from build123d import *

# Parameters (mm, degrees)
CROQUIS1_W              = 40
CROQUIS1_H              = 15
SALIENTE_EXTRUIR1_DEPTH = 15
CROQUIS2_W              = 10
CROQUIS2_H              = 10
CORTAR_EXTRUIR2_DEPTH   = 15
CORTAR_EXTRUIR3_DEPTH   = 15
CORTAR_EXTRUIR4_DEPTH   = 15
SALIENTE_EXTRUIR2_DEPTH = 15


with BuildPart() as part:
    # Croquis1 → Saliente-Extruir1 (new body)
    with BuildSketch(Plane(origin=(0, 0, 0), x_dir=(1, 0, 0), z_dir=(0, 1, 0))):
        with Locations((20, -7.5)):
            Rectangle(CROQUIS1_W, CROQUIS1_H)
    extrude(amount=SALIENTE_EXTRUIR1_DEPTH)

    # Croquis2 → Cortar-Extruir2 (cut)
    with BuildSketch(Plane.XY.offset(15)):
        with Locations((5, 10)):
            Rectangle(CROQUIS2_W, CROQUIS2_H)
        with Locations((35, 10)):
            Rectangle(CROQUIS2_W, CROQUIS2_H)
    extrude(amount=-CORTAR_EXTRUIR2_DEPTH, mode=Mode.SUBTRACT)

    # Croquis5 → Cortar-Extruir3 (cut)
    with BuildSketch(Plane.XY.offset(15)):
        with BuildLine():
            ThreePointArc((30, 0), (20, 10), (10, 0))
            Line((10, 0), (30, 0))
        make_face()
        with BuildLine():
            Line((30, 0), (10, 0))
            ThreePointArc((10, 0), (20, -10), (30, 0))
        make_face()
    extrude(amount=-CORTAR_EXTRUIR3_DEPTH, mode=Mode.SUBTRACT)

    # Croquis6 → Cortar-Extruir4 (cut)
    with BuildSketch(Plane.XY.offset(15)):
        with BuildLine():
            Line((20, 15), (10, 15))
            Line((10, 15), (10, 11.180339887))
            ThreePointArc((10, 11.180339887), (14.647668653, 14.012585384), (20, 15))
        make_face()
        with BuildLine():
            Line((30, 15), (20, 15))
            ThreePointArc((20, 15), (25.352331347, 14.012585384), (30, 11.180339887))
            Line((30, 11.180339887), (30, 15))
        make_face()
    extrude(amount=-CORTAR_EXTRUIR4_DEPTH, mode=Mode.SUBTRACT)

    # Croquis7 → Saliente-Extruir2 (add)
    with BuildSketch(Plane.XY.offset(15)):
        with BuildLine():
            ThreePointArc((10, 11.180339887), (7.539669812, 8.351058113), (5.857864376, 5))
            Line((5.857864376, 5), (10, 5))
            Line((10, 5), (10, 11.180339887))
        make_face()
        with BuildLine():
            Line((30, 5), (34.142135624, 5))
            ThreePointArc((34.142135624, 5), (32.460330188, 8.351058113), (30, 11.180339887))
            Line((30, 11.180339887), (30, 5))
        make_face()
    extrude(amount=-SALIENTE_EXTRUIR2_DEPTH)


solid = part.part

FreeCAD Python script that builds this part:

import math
import FreeCAD as App
import Part
import Sketcher
from FreeCAD import Vector
Q = App.Units.Quantity


def add_polygon(sketch, points):
    """Adds a closed chain of lines whose ends are joined by coincident constraints."""
    first, n = sketch.GeometryCount, len(points)
    for a, b in zip(points, points[1:] + points[:1]):
        sketch.addGeometry(Part.LineSegment(App.Vector(*a, 0), App.Vector(*b, 0)), False)
    for i in range(n):
        sketch.addConstraint(Sketcher.Constraint("Coincident", first + i, 2, first + (i + 1) % n, 1))

doc = App.newDocument("Part")
body = doc.addObject("PartDesign::Body", "Body")

# Sketch on XZ plane
sketch1 = body.newObject("Sketcher::SketchObject", "Sketch")
sketch1.AttachmentSupport = (doc.getObject("XZ_Plane"), [""])
sketch1.MapMode = "FlatFace"
add_polygon(sketch1, [(0, 0), (0, 15), (40, 15), (40, 0)])  # lines 0-3
sketch1.addConstraint([
    Sketcher.Constraint("Vertical", 0),
    Sketcher.Constraint("Horizontal", 1),
    Sketcher.Constraint("Vertical", 2),
    Sketcher.Constraint("Horizontal", 3),
    Sketcher.Constraint("Coincident", 3, 2, -1, 1),
    Sketcher.Constraint("DistanceX", 1, 1, 1, 2, Q("40 mm")),
    Sketcher.Constraint("DistanceY", 0, 1, 0, 2, Q("15 mm")),
])
pad1 = body.newObject("PartDesign::Pad", "Pad")
pad1.Profile = sketch1
pad1.Length = 15
pad1.Reversed = True

# Sketch on XY plane
sketch2 = body.newObject("Sketcher::SketchObject", "Sketch001")
sketch2.AttachmentSupport = (doc.getObject("XY_Plane"), [""])
sketch2.MapMode = "FlatFace"
sketch2.AttachmentOffset = App.Placement(Vector(0, 0, 15), App.Rotation())
add_polygon(sketch2, [(0, 15), (0, 5), (10, 5), (10, 15)])  # lines 0-3
add_polygon(sketch2, [(30, 15), (30, 5), (40, 5), (40, 15)])  # lines 4-7
sketch2.addConstraint([
    Sketcher.Constraint("Vertical", 0),
    Sketcher.Constraint("Horizontal", 1),
    Sketcher.Constraint("Vertical", 2),
    Sketcher.Constraint("Horizontal", 3),
    Sketcher.Constraint("Vertical", 4),
    Sketcher.Constraint("Horizontal", 5),
    Sketcher.Constraint("Vertical", 6),
    Sketcher.Constraint("Horizontal", 7),
    Sketcher.Constraint("PointOnObject", 0, 2, -2),
    Sketcher.Constraint("Horizontal", 1, 2, 4, 2),
    Sketcher.Constraint("Horizontal", 3, 2, 6, 2),
    Sketcher.Constraint("Equal", 3, 5),
    Sketcher.Constraint("Equal", 7, 0),
    Sketcher.Constraint("DistanceX", 1, 1, 1, 2, Q("10 mm")),
    Sketcher.Constraint("DistanceY", -1, 1, 0, 2, Q("5 mm")),
    Sketcher.Constraint("DistanceX", -1, 1, 4, 2, Q("30 mm")),
])
pocket1 = body.newObject("PartDesign::Pocket", "Pocket")
pocket1.Profile = sketch2
pocket1.Length = 15

# Sketch on XY plane
sketch3 = body.newObject("Sketcher::SketchObject", "Sketch002")
sketch3.AttachmentSupport = (doc.getObject("XY_Plane"), [""])
sketch3.MapMode = "FlatFace"
sketch3.AttachmentOffset = App.Placement(Vector(0, 0, 15), App.Rotation())
sketch3.addGeometry(Part.Circle(Vector(20, 0, 0), Vector(0, 0, 1), 10), False)
sketch3.addConstraint([
    Sketcher.Constraint("PointOnObject", 0, 3, -1),
    Sketcher.Constraint("Diameter", 0, Q("20 mm")),
    Sketcher.Constraint("DistanceX", -1, 1, 0, 3, Q("20 mm")),
])
pocket2 = body.newObject("PartDesign::Pocket", "Pocket001")
pocket2.Profile = sketch3
pocket2.Length = 15

# Sketch on XY plane
sketch4 = body.newObject("Sketcher::SketchObject", "Sketch003")
sketch4.AttachmentSupport = (doc.getObject("XY_Plane"), [""])
sketch4.MapMode = "FlatFace"
sketch4.AttachmentOffset = App.Placement(Vector(0, 0, 15), App.Rotation())
sketch4.addGeometry([
    Part.LineSegment(Vector(20, 15, 0), Vector(10, 15, 0)),  # 0
    Part.LineSegment(Vector(10, 15, 0), Vector(10, 11.2, 0)),  # 1
    Part.ArcOfCircle(Part.Circle(Vector(20, 0, 0), Vector(0, 0, 1), 15), math.radians(90), math.radians(132)),  # 2
    Part.LineSegment(Vector(30, 15, 0), Vector(20, 15, 0)),  # 3
    Part.ArcOfCircle(Part.Circle(Vector(20, 0, 0), Vector(0, 0, 1), 15), math.radians(48), math.radians(90)),  # 4
    Part.LineSegment(Vector(30, 11.2, 0), Vector(30, 15, 0)),  # 5
], False)
sketch4.addConstraint([
    Sketcher.Constraint("Coincident", 0, 2, 1, 1),
    Sketcher.Constraint("Coincident", 1, 2, 2, 2),
    Sketcher.Constraint("Tangent", 2, 1, 0, 1),
    Sketcher.Constraint("Tangent", 3, 2, 4, 2),
    Sketcher.Constraint("Coincident", 4, 1, 5, 1),
    Sketcher.Constraint("Coincident", 5, 2, 3, 1),
    Sketcher.Constraint("Horizontal", 0),
    Sketcher.Constraint("Vertical", 1),
    Sketcher.Constraint("Horizontal", 3),
    Sketcher.Constraint("Vertical", 5),
    Sketcher.Constraint("Coincident", 4, 3, 2, 3),
    Sketcher.Constraint("Equal", 2, 4),
    Sketcher.Constraint("PointOnObject", 2, 3, -1),
    Sketcher.Constraint("Horizontal", 1, 2, 4, 1),
    Sketcher.Constraint("Radius", 2, Q("15 mm")),
    Sketcher.Constraint("DistanceX", 0, 2, 0, 1, Q("10 mm")),
    Sketcher.Constraint("DistanceX", -1, 1, 2, 3, Q("20 mm")),
])
pocket3 = body.newObject("PartDesign::Pocket", "Pocket002")
pocket3.Profile = sketch4
pocket3.Length = 15

# Sketch on XY plane
sketch5 = body.newObject("Sketcher::SketchObject", "Sketch004")
sketch5.AttachmentSupport = (doc.getObject("XY_Plane"), [""])
sketch5.MapMode = "FlatFace"
sketch5.AttachmentOffset = App.Placement(Vector(0, 0, 15), App.Rotation())
sketch5.addGeometry([
    Part.ArcOfCircle(Part.Circle(Vector(20, 0, 0), Vector(0, 0, 1), 15), math.radians(132), math.radians(161)),  # 0
    Part.LineSegment(Vector(5.9, 5, 0), Vector(10, 5, 0)),  # 1
    Part.LineSegment(Vector(10, 5, 0), Vector(10, 11.2, 0)),  # 2
    Part.LineSegment(Vector(30, 5, 0), Vector(34.1, 5, 0)),  # 3
    Part.ArcOfCircle(Part.Circle(Vector(20, 0, 0), Vector(0, 0, 1), 15), math.radians(19), math.radians(48)),  # 4
    Part.LineSegment(Vector(30, 11.2, 0), Vector(30, 5, 0)),  # 5
], False)
sketch5.addConstraint([
    Sketcher.Constraint("Coincident", 0, 2, 1, 1),
    Sketcher.Constraint("Coincident", 1, 2, 2, 1),
    Sketcher.Constraint("Coincident", 2, 2, 0, 1),
    Sketcher.Constraint("Coincident", 3, 2, 4, 1),
    Sketcher.Constraint("Coincident", 4, 2, 5, 1),
    Sketcher.Constraint("Coincident", 5, 2, 3, 1),
    Sketcher.Constraint("Horizontal", 1),
    Sketcher.Constraint("Vertical", 2),
    Sketcher.Constraint("Horizontal", 3),
    Sketcher.Constraint("Vertical", 5),
    Sketcher.Constraint("Coincident", 4, 3, 0, 3),
    Sketcher.Constraint("Equal", 0, 4),
    Sketcher.Constraint("PointOnObject", 0, 3, -1),
    Sketcher.Constraint("Horizontal", 1, 2, 3, 2),
    Sketcher.Constraint("Horizontal", 2, 2, 4, 2),
    Sketcher.Constraint("Radius", 0, Q("15 mm")),
    Sketcher.Constraint("DistanceX", -1, 1, 0, 3, Q("20 mm")),
    Sketcher.Constraint("DistanceY", -1, 1, 0, 2, Q("5 mm")),
    Sketcher.Constraint("DistanceX", -1, 1, 1, 2, Q("10 mm")),
])
pad2 = body.newObject("PartDesign::Pad", "Pad001")
pad2.Profile = sketch5
pad2.Length = 15
pad2.Reversed = True

doc.recompute()
